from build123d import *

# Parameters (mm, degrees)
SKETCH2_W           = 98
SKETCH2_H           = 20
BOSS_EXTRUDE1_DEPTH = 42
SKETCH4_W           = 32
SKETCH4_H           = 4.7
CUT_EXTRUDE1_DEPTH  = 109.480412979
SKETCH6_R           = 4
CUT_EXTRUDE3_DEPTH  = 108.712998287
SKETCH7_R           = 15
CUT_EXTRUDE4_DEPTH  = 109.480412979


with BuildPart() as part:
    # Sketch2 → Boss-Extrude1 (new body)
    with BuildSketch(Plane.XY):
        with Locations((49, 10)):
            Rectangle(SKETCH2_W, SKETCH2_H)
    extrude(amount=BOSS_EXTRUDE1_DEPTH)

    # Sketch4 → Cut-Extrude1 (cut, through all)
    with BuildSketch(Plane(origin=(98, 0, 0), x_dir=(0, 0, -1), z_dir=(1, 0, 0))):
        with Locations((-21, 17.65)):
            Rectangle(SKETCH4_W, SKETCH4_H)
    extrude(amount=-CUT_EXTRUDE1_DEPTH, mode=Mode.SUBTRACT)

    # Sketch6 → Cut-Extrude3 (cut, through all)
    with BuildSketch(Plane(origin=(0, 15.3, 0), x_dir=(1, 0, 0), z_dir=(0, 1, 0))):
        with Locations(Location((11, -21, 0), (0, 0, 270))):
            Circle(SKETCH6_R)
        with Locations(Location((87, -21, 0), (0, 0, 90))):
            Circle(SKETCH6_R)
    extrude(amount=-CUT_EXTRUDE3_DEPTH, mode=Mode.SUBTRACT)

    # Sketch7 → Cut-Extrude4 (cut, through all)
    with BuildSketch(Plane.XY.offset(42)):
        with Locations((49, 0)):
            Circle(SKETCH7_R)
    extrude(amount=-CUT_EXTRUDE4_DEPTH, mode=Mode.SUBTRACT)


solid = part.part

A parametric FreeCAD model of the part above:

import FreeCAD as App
import Part
import Sketcher


def add_polygon(sketch, points):
    """Adds a closed chain of lines whose ends are joined by coincident constraints."""
    first, n = sketch.GeometryCount, len(points)
    for a, b in zip(points, points[1:] + points[:1]):
        sketch.addGeometry(Part.LineSegment(App.Vector(*a, 0), App.Vector(*b, 0)), False)
    for i in range(n):
        sketch.addConstraint(Sketcher.Constraint("Coincident", first + i, 2, first + (i + 1) % n, 1))

doc = App.newDocument("Part")
body = doc.addObject("PartDesign::Body", "Body")

sketch1 = doc.addObject("Sketcher::SketchObject", "Sketch")
body.addObject(sketch1)
sketch1.AttachmentSupport = (doc.XY_Plane, [""])
sketch1.MapMode = "FlatFace"
add_polygon(sketch1, [(0, 20), (0, 0), (98, 0), (98, 20)])
sketch1.addConstraint(Sketcher.Constraint("Vertical", 0))
sketch1.addConstraint(Sketcher.Constraint("Horizontal", 1))
sketch1.addConstraint(Sketcher.Constraint("Vertical", 2))
sketch1.addConstraint(Sketcher.Constraint("Horizontal", 3))
sketch1.addConstraint(Sketcher.Constraint("Coincident", 0, 2, -1, 1))
sketch1.addConstraint(Sketcher.Constraint("DistanceX", 1, 1, 1, 2, 98.0))
sketch1.addConstraint(Sketcher.Constraint("DistanceY", 0, 2, 0, 1, 20.0))
pad1 = doc.addObject("PartDesign::Pad", "Pad")
body.addObject(pad1)
pad1.Profile = sketch1
pad1.Length = 42

sketch2 = doc.addObject("Sketcher::SketchObject", "Sketch001")
body.addObject(sketch2)
sketch2.AttachmentSupport = (doc.YZ_Plane, [""])
sketch2.MapMode = "FlatFace"
sketch2.AttachmentOffset = App.Placement(App.Vector(0, 0, 98), App.Rotation())
add_polygon(sketch2, [(20, 37), (15.3, 37), (15.3, 5), (20, 5)])
sketch2.addConstraint(Sketcher.Constraint("Horizontal", 0))
sketch2.addConstraint(Sketcher.Constraint("Vertical", 1))
sketch2.addConstraint(Sketcher.Constraint("Horizontal", 2))
sketch2.addConstraint(Sketcher.Constraint("Vertical", 3))
sketch2.addConstraint(Sketcher.Constraint("DistanceY", 1, 2, 1, 1, 32.0))
sketch2.addConstraint(Sketcher.Constraint("DistanceX", 0, 2, 0, 1, 4.7))
sketch2.addConstraint(Sketcher.Constraint("DistanceY", -1, 1, 0, 2, 37.0))
sketch2.addConstraint(Sketcher.Constraint("DistanceX", -1, 1, 2, 2, 20.0))
pocket1 = doc.addObject("PartDesign::Pocket", "Pocket")
body.addObject(pocket1)
pocket1.Profile = sketch2
pocket1.Type = "ThroughAll"

sketch3 = doc.addObject("Sketcher::SketchObject", "Sketch002")
body.addObject(sketch3)
sketch3.AttachmentSupport = (doc.XZ_Plane, [""])
sketch3.MapMode = "FlatFace"
sketch3.AttachmentOffset = App.Placement(App.Vector(0, 0, -15.3), App.Rotation())
sketch3.addGeometry(Part.Circle(App.Vector(11, 21, 0), App.Vector(0, 0, 1), 4), False)
sketch3.addGeometry(Part.Circle(App.Vector(87, 21, 0), App.Vector(0, 0, 1), 4), False)
sketch3.addConstraint(Sketcher.Constraint("Equal", 0, 1))
sketch3.addConstraint(Sketcher.Constraint("Horizontal", 0, 3, 1, 3))
sketch3.addConstraint(Sketcher.Constraint("Diameter", 0, 8.0))
sketch3.addConstraint(Sketcher.Constraint("DistanceX", -1, 1, 0, 3, 11.0))
sketch3.addConstraint(Sketcher.Constraint("DistanceY", -1, 1, 0, 3, 21.0))
sketch3.addConstraint(Sketcher.Constraint("DistanceX", -1, 1, 1, 3, 87.0))
pocket2 = doc.addObject("PartDesign::Pocket", "Pocket001")
body.addObject(pocket2)
pocket2.Profile = sketch3
pocket2.Type = "ThroughAll"
pocket2.Reversed = True

sketch4 = doc.addObject("Sketcher::SketchObject", "Sketch003")
body.addObject(sketch4)
sketch4.AttachmentSupport = (doc.XY_Plane, [""])
sketch4.MapMode = "FlatFace"
sketch4.AttachmentOffset = App.Placement(App.Vector(0, 0, 42), App.Rotation())
sketch4.addGeometry(Part.Circle(App.Vector(49, 0, 0), App.Vector(0, 0, 1), 15), False)
sketch4.addConstraint(Sketcher.Constraint("PointOnObject", 0, 3, -1))
sketch4.addConstraint(Sketcher.Constraint("Diameter", 0, 30.0))
sketch4.addConstraint(Sketcher.Constraint("DistanceX", -1, 1, 0, 3, 49.0))
pocket3 = doc.addObject("PartDesign::Pocket", "Pocket002")
body.addObject(pocket3)
pocket3.Profile = sketch4
pocket3.Type = "ThroughAll"

doc.recompute()
